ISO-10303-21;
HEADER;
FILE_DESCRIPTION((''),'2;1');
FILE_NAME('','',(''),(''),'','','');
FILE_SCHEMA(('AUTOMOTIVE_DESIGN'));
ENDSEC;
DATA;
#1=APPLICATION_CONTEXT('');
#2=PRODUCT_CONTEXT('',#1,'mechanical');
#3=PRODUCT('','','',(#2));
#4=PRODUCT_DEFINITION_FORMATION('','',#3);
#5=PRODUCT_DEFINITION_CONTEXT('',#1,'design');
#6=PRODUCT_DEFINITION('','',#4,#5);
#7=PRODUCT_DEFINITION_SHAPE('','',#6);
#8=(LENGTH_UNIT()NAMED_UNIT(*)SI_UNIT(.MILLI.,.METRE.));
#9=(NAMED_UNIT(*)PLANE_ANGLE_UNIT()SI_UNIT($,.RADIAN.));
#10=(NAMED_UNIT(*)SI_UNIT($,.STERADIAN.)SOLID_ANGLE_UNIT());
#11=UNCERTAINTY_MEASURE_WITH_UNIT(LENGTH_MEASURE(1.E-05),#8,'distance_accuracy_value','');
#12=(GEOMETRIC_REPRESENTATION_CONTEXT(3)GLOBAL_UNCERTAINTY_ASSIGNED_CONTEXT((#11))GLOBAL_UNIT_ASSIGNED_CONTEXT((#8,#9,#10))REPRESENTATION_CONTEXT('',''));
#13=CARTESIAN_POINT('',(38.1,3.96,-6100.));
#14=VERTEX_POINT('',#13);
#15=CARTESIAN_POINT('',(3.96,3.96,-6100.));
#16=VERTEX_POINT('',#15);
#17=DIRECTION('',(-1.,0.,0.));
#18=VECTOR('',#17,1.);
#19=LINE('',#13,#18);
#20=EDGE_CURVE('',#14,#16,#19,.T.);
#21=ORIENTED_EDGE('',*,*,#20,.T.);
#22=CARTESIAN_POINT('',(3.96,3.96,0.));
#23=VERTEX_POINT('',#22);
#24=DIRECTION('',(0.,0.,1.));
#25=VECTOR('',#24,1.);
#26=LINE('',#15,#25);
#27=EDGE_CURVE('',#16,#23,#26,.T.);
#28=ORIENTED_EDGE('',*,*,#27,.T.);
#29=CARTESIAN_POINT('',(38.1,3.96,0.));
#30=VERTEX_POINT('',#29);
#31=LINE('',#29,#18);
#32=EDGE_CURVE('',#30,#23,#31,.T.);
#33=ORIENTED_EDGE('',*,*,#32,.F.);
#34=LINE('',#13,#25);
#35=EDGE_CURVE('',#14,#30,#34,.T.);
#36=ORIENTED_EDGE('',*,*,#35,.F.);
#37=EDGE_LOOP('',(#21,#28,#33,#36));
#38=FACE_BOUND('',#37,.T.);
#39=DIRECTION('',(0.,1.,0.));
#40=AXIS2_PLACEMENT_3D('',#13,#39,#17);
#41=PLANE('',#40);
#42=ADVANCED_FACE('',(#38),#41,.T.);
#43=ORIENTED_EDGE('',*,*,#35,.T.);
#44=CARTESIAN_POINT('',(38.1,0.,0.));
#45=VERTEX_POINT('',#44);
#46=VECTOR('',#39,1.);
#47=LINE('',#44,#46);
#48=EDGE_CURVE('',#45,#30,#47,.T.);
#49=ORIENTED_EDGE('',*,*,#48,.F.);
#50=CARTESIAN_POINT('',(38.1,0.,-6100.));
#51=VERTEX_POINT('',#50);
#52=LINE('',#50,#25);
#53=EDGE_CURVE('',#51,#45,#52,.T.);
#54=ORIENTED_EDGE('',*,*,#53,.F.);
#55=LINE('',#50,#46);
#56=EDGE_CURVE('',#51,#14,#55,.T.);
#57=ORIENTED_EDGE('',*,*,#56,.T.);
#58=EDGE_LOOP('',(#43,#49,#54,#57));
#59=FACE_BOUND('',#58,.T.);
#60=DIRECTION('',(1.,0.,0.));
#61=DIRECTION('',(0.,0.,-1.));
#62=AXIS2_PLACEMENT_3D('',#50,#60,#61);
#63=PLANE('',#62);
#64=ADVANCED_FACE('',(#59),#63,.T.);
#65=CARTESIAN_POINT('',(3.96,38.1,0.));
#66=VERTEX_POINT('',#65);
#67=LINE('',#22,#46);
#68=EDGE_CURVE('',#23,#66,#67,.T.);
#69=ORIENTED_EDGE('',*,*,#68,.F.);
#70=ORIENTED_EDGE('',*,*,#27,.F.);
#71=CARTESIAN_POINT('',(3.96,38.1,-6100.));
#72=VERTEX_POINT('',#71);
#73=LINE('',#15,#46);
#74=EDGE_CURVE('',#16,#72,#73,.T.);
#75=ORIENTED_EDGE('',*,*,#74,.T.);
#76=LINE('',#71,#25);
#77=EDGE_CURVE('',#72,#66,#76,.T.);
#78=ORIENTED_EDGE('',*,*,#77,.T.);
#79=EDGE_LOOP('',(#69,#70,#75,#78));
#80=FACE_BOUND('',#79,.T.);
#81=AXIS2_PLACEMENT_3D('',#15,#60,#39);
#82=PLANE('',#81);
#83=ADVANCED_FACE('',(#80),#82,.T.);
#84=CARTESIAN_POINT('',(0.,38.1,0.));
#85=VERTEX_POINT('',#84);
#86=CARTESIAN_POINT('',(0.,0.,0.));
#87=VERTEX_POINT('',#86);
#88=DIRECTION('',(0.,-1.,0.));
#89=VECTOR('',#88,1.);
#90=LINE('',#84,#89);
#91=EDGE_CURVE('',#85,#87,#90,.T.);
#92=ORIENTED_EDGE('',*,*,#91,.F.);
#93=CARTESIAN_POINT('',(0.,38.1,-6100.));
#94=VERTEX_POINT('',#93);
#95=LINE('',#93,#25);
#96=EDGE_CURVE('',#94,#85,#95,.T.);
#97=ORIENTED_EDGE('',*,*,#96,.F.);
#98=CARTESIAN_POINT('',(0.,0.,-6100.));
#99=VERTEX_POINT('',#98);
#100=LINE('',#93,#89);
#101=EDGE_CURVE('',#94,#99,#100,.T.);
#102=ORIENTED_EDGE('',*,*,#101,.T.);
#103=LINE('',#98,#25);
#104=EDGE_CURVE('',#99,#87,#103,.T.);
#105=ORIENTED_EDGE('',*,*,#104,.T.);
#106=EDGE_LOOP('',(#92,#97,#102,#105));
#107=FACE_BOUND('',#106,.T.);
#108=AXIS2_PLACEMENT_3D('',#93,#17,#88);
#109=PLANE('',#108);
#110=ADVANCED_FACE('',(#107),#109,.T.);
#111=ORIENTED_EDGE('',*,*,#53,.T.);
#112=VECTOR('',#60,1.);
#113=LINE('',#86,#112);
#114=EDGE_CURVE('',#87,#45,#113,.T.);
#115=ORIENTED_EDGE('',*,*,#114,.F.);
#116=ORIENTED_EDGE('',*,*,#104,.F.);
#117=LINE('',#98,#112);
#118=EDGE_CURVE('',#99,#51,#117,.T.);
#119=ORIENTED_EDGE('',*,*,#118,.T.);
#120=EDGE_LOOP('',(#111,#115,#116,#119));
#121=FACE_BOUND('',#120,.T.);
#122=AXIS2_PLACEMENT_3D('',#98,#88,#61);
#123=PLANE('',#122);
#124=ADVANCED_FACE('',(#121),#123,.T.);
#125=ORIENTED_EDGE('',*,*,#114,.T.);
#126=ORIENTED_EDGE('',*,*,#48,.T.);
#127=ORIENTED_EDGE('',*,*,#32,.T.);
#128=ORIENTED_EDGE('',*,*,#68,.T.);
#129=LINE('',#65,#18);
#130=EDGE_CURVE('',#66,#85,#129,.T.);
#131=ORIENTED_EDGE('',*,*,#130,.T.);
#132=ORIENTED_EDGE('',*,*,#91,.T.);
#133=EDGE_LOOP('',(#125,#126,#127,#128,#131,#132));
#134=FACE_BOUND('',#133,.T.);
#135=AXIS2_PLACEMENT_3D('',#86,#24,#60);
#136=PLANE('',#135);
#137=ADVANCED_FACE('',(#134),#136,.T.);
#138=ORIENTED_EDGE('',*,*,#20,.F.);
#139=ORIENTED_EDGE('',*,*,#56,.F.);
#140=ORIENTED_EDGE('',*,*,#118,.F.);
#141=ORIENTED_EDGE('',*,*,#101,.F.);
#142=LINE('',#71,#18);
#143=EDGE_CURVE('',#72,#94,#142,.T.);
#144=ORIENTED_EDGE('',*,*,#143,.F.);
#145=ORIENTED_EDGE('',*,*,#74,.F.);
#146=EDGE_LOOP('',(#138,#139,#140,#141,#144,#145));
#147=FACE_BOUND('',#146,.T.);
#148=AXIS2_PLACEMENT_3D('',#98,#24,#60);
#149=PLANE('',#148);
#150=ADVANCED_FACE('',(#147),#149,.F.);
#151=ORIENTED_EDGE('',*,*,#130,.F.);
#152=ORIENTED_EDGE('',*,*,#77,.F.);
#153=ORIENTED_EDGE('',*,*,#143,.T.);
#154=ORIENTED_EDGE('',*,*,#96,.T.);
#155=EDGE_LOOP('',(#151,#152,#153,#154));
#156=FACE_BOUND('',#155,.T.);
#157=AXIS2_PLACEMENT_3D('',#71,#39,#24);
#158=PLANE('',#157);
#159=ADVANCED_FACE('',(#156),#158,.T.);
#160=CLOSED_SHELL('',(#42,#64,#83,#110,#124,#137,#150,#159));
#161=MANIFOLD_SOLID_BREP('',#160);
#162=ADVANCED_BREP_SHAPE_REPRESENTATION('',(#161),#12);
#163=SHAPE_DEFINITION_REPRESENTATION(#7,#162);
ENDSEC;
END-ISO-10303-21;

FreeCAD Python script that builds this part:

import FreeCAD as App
import Part
import Sketcher

doc = App.newDocument("Part")
body = doc.addObject("PartDesign::Body", "Body")

sketch1 = body.newObject("Sketcher::SketchObject", "Sketch")
sketch1.AttachmentSupport = (doc.getObject("XY_Plane"), [""])
sketch1.MapMode = "FlatFace"
sketch1.addGeometry([
    Part.LineSegment(App.Vector(0, 38.1, 0), App.Vector(0, 0, 0)),
    Part.LineSegment(App.Vector(0, 0, 0), App.Vector(38.1, 0, 0)),
    Part.LineSegment(App.Vector(38.1, 0, 0), App.Vector(38.1, 3.96, 0)),
    Part.LineSegment(App.Vector(38.1, 3.96, 0), App.Vector(3.96, 3.96, 0)),
    Part.LineSegment(App.Vector(3.96, 3.96, 0), App.Vector(3.96, 38.1, 0)),
    Part.LineSegment(App.Vector(3.96, 38.1, 0), App.Vector(0, 38.1, 0)),
], False)
sketch1.addConstraint([
    Sketcher.Constraint("Coincident", 0, 2, 1, 1),
    Sketcher.Constraint("Coincident", 1, 2, 2, 1),
    Sketcher.Constraint("Coincident", 2, 2, 3, 1),
    Sketcher.Constraint("Coincident", 3, 2, 4, 1),
    Sketcher.Constraint("Coincident", 4, 2, 5, 1),
    Sketcher.Constraint("Coincident", 5, 2, 0, 1),
    Sketcher.Constraint("Vertical", 0),
    Sketcher.Constraint("Horizontal", 1),
    Sketcher.Constraint("Vertical", 2),
    Sketcher.Constraint("Horizontal", 3),
    Sketcher.Constraint("Vertical", 4),
    Sketcher.Constraint("Horizontal", 5),
    Sketcher.Constraint("Coincident", 0, 2, -1, 1),
    Sketcher.Constraint("Equal", 1, 0),
    Sketcher.Constraint("Equal", 5, 2),
    Sketcher.Constraint("DistanceX", 1, 1, 1, 2, 38.1),
    Sketcher.Constraint("DistanceX", 3, 2, 3, 1, 34.14),
])
pad1 = body.newObject("PartDesign::Pad", "Pad")
pad1.Profile = sketch1
pad1.Length = 6100
pad1.Reversed = True

doc.recompute()
